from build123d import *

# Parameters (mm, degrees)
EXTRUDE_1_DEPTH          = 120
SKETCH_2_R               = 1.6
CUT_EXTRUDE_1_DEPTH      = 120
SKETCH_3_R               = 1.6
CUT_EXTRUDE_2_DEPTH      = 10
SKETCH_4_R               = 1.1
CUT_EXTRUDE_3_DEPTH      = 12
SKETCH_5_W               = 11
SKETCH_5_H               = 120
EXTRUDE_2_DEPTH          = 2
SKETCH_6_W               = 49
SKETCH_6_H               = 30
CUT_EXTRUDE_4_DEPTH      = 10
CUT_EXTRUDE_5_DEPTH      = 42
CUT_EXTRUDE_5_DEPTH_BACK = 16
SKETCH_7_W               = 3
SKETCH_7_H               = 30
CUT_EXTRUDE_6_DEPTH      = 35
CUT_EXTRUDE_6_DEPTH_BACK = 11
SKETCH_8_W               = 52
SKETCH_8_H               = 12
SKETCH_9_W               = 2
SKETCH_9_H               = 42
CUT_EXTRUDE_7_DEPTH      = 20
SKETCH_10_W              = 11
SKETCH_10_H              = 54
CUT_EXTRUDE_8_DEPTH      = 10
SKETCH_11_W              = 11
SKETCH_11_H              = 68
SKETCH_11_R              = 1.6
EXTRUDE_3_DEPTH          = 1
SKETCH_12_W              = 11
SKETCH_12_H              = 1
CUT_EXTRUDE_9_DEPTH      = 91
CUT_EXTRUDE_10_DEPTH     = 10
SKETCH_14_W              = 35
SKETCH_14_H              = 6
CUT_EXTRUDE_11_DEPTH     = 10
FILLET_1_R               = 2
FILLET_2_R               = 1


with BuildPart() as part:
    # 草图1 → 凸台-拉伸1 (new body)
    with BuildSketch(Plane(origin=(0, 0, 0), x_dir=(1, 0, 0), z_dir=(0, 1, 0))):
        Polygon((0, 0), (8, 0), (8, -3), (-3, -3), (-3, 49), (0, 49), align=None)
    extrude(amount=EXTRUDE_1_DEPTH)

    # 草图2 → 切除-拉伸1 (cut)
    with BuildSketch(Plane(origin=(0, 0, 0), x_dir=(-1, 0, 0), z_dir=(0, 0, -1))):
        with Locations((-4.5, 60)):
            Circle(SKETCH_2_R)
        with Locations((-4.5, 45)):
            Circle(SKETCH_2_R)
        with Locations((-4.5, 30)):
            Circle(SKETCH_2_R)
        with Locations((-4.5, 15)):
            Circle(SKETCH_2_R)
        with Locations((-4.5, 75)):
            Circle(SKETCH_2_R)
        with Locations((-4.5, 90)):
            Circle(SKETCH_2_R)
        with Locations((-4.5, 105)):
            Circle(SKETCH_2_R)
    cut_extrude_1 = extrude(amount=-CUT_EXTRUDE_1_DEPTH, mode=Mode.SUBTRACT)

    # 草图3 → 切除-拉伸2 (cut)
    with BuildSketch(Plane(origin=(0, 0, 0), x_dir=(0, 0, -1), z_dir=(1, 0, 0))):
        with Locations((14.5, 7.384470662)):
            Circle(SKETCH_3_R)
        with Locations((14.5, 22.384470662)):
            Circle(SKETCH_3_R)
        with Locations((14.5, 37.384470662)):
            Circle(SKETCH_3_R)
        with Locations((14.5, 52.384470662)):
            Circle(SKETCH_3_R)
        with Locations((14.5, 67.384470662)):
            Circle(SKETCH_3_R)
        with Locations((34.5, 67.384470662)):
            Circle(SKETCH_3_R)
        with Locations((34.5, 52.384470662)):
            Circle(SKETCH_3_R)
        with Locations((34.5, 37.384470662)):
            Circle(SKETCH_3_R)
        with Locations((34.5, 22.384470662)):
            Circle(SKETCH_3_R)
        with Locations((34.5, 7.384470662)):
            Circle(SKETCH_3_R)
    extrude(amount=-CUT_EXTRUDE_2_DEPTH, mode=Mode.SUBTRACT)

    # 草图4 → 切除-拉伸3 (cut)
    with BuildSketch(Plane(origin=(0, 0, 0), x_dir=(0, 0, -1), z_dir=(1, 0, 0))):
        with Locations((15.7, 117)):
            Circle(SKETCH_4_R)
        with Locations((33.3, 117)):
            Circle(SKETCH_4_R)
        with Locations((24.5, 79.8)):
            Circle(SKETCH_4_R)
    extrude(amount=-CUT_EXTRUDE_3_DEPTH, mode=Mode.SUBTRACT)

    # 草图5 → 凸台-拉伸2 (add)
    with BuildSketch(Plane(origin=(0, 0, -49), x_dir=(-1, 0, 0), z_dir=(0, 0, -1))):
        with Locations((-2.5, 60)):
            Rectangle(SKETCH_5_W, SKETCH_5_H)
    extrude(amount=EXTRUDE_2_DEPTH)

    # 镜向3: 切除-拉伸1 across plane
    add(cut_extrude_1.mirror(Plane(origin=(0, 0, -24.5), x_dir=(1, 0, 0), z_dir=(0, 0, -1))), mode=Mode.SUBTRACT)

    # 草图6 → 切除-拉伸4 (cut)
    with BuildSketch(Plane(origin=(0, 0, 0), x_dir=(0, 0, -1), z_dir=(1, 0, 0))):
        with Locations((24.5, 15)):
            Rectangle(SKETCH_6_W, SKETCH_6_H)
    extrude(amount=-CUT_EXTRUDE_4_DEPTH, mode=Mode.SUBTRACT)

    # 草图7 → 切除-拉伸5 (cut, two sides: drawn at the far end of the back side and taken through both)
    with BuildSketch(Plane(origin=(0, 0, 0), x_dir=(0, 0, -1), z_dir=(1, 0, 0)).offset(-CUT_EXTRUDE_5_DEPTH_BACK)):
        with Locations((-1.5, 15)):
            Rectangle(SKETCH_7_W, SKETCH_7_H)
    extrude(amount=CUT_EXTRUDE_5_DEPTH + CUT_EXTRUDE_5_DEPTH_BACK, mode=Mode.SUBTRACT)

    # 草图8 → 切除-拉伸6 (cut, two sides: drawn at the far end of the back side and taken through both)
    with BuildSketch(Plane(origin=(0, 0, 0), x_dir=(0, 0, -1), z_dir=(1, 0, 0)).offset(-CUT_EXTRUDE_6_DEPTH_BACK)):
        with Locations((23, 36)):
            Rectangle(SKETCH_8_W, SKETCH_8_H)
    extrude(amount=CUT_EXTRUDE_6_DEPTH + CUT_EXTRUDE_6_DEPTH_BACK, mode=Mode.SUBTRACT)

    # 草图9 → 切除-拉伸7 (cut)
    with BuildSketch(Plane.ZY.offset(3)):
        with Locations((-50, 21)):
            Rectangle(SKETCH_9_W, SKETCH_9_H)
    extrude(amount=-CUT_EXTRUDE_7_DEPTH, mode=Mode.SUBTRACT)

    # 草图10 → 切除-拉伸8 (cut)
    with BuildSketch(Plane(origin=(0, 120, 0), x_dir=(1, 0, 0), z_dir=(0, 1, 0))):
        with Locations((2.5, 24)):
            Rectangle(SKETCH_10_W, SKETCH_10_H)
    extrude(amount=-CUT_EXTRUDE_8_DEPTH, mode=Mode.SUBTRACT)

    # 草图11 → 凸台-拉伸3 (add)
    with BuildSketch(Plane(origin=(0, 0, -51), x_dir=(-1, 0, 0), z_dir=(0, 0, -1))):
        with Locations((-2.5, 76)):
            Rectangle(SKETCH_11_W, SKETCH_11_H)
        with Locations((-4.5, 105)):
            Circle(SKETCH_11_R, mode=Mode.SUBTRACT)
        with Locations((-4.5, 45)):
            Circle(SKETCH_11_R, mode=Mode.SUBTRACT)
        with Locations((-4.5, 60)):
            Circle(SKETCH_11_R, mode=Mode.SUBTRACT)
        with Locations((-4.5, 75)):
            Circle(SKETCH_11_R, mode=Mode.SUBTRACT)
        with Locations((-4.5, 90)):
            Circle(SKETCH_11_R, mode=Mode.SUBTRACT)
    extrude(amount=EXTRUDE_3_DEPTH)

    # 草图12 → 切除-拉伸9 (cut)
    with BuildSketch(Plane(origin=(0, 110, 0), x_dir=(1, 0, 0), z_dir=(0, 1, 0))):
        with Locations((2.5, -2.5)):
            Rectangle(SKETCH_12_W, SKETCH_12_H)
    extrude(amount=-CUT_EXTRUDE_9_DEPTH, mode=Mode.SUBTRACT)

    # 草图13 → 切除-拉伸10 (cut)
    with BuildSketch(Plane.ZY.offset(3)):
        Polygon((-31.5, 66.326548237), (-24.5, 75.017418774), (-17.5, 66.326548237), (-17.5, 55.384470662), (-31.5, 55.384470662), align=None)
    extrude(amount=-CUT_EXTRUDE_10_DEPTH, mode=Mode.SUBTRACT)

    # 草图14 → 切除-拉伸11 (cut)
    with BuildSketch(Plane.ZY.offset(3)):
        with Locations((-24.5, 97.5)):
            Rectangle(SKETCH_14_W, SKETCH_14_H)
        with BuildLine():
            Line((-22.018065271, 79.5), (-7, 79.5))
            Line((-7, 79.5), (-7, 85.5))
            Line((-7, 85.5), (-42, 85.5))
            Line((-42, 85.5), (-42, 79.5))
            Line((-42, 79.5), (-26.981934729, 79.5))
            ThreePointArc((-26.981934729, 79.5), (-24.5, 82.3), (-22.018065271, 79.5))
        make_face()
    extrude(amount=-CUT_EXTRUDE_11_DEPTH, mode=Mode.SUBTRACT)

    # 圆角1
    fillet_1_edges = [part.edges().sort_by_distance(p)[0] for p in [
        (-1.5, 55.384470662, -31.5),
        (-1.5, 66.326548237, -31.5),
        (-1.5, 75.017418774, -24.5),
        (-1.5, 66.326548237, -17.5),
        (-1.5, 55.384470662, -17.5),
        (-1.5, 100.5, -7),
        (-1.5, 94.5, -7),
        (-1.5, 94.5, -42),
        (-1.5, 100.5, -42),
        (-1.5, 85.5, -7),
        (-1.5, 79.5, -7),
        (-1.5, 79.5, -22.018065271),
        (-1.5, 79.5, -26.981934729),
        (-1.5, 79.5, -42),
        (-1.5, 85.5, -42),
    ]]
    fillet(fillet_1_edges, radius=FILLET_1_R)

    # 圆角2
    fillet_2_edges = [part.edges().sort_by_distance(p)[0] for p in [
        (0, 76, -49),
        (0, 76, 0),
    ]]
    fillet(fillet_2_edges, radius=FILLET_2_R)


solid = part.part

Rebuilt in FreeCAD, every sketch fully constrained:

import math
import FreeCAD as App
import Part
import Sketcher


def edges_at(feature, points):
    """Names of the edges that pass closest to the given points."""
    edges = feature.Shape.Edges
    near = lambda p: min(range(len(edges)), key=lambda i: edges[i].distToShape(Part.Vertex(*p))[0])
    return sorted({f"Edge{near(p) + 1}" for p in points})

doc = App.newDocument("Part")
body = doc.addObject("PartDesign::Body", "Body")

# Sketch on XZ plane
sketch1 = body.newObject("Sketcher::SketchObject", "Sketch")
sketch1.AttachmentSupport = (doc.getObject("XZ_Plane"), [""])
sketch1.MapMode = "FlatFace"
sketch1.addGeometry([
    Part.LineSegment(App.Vector(8, 0, 0), App.Vector(0, 0, 0)),  # 0
    Part.LineSegment(App.Vector(0, 0, 0), App.Vector(0, -49, 0)),  # 1
    Part.LineSegment(App.Vector(0, -49, 0), App.Vector(-3, -49, 0)),  # 2
    Part.LineSegment(App.Vector(-3, -49, 0), App.Vector(-3, 3, 0)),  # 3
    Part.LineSegment(App.Vector(-3, 3, 0), App.Vector(8, 3, 0)),  # 4
    Part.LineSegment(App.Vector(8, 3, 0), App.Vector(8, 0, 0)),  # 5
], False)
sketch1.addConstraint([
    Sketcher.Constraint("Coincident", 0, 2, 1, 1),
    Sketcher.Constraint("Coincident", 1, 2, 2, 1),
    Sketcher.Constraint("Coincident", 2, 2, 3, 1),
    Sketcher.Constraint("Coincident", 3, 2, 4, 1),
    Sketcher.Constraint("Coincident", 4, 2, 5, 1),
    Sketcher.Constraint("Coincident", 5, 2, 0, 1),
    Sketcher.Constraint("Horizontal", 0),
    Sketcher.Constraint("Vertical", 1),
    Sketcher.Constraint("Horizontal", 2),
    Sketcher.Constraint("Vertical", 3),
    Sketcher.Constraint("Horizontal", 4),
    Sketcher.Constraint("Vertical", 5),
    Sketcher.Constraint("Coincident", 0, 2, -1, 1),
    Sketcher.Constraint("Equal", 2, 5),
    Sketcher.Constraint("DistanceX", 0, 2, 0, 1, 8.0),
    Sketcher.Constraint("DistanceX", 2, 2, 2, 1, 3.0),
    Sketcher.Constraint("DistanceY", 1, 2, 1, 1, 49.0),
])
pad1 = body.newObject("PartDesign::Pad", "Pad")
pad1.Profile = sketch1
pad1.Length = 120
pad1.Reversed = True

# Sketch on XY plane
sketch2 = body.newObject("Sketcher::SketchObject", "Sketch001")
sketch2.AttachmentSupport = (doc.getObject("XY_Plane"), [""])
sketch2.MapMode = "FlatFace"
sketch2.addGeometry([
    Part.Circle(App.Vector(4.5, 60, 0), App.Vector(0, 0, 1), 1.6),  # 0
    Part.Circle(App.Vector(4.5, 45, 0), App.Vector(0, 0, 1), 1.6),  # 1
    Part.Circle(App.Vector(4.5, 30, 0), App.Vector(0, 0, 1), 1.6),  # 2
    Part.Circle(App.Vector(4.5, 15, 0), App.Vector(0, 0, 1), 1.6),  # 3
    Part.Circle(App.Vector(4.5, 75, 0), App.Vector(0, 0, 1), 1.6),  # 4
    Part.Circle(App.Vector(4.5, 90, 0), App.Vector(0, 0, 1), 1.6),  # 5
    Part.Circle(App.Vector(4.5, 105, 0), App.Vector(0, 0, 1), 1.6),  # 6
], False)
sketch2.addConstraint([
    Sketcher.Constraint("Equal", 0, 1),
    Sketcher.Constraint("Equal", 1, 2),
    Sketcher.Constraint("Equal", 2, 3),
    Sketcher.Constraint("Equal", 3, 4),
    Sketcher.Constraint("Equal", 4, 5),
    Sketcher.Constraint("Equal", 5, 6),
    Sketcher.Constraint("Vertical", 0, 3, 1, 3),
    Sketcher.Constraint("Vertical", 1, 3, 2, 3),
    Sketcher.Constraint("Vertical", 2, 3, 3, 3),
    Sketcher.Constraint("Vertical", 3, 3, 4, 3),
    Sketcher.Constraint("Vertical", 4, 3, 5, 3),
    Sketcher.Constraint("Vertical", 5, 3, 6, 3),
    Sketcher.Constraint("Diameter", 0, 3.2),
    Sketcher.Constraint("DistanceY", -1, 1, 0, 3, 60.0),
    Sketcher.Constraint("DistanceY", -1, 1, 1, 3, 45.0),
    Sketcher.Constraint("DistanceY", -1, 1, 2, 3, 30.0),
    Sketcher.Constraint("DistanceY", -1, 1, 3, 3, 15.0),
    Sketcher.Constraint("DistanceY", -1, 1, 4, 3, 75.0),
    Sketcher.Constraint("DistanceY", -1, 1, 5, 3, 90.0),
    Sketcher.Constraint("DistanceY", -1, 1, 6, 3, 105.0),
    Sketcher.Constraint("DistanceX", -1, 1, 0, 3, 4.5),
])
pocket1 = body.newObject("PartDesign::Pocket", "Pocket")
pocket1.Profile = sketch2
pocket1.Length = 120
pocket1.Reversed = True

# Sketch on YZ plane
sketch3 = body.newObject("Sketcher::SketchObject", "Sketch002")
sketch3.AttachmentSupport = (doc.getObject("YZ_Plane"), [""])
sketch3.MapMode = "FlatFace"
sketch3.addGeometry([
    Part.Circle(App.Vector(7.384471, -14.5, 0), App.Vector(0, 0, 1), 1.6),  # 0
    Part.Circle(App.Vector(22.384471, -14.5, 0), App.Vector(0, 0, 1), 1.6),  # 1
    Part.Circle(App.Vector(37.384471, -14.5, 0), App.Vector(0, 0, 1), 1.6),  # 2
    Part.Circle(App.Vector(52.384471, -14.5, 0), App.Vector(0, 0, 1), 1.6),  # 3
    Part.Circle(App.Vector(67.384471, -14.5, 0), App.Vector(0, 0, 1), 1.6),  # 4
    Part.Circle(App.Vector(67.384471, -34.5, 0), App.Vector(0, 0, 1), 1.6),  # 5
    Part.Circle(App.Vector(52.384471, -34.5, 0), App.Vector(0, 0, 1), 1.6),  # 6
    Part.Circle(App.Vector(37.384471, -34.5, 0), App.Vector(0, 0, 1), 1.6),  # 7
    Part.Circle(App.Vector(22.384471, -34.5, 0), App.Vector(0, 0, 1), 1.6),  # 8
    Part.Circle(App.Vector(7.384471, -34.5, 0), App.Vector(0, 0, 1), 1.6),  # 9
], False)
sketch3.addConstraint([
    Sketcher.Constraint("Equal", 0, 1),
    Sketcher.Constraint("Equal", 1, 2),
    Sketcher.Constraint("Equal", 2, 3),
    Sketcher.Constraint("Equal", 3, 4),
    Sketcher.Constraint("Equal", 4, 5),
    Sketcher.Constraint("Equal", 5, 6),
    Sketcher.Constraint("Equal", 6, 7),
    Sketcher.Constraint("Equal", 7, 8),
    Sketcher.Constraint("Equal", 8, 9),
    Sketcher.Constraint("Horizontal", 0, 3, 1, 3),
    Sketcher.Constraint("Horizontal", 1, 3, 2, 3),
    Sketcher.Constraint("Horizontal", 2, 3, 3, 3),
    Sketcher.Constraint("Horizontal", 3, 3, 4, 3),
    Sketcher.Constraint("Horizontal", 5, 3, 6, 3),
    Sketcher.Constraint("Horizontal", 6, 3, 7, 3),
    Sketcher.Constraint("Horizontal", 7, 3, 8, 3),
    Sketcher.Constraint("Horizontal", 8, 3, 9, 3),
    Sketcher.Constraint("Vertical", 4, 3, 5, 3),
    Sketcher.Constraint("Vertical", 3, 3, 6, 3),
    Sketcher.Constraint("Vertical", 2, 3, 7, 3),
    Sketcher.Constraint("Vertical", 1, 3, 8, 3),
    Sketcher.Constraint("Vertical", 0, 3, 9, 3),
    Sketcher.Constraint("Diameter", 0, 3.2),
    Sketcher.Constraint("DistanceX", 0, 3, 1, 3, 15.0),
    Sketcher.Constraint("DistanceX", 1, 3, 2, 3, 15.0),
    Sketcher.Constraint("DistanceX", 2, 3, 3, 3, 15.0),
    Sketcher.Constraint("DistanceX", 3, 3, 4, 3, 15.0),
    Sketcher.Constraint("DistanceY", 5, 3, 4, 3, 20.0),
    Sketcher.Constraint("DistanceY", 0, 3, -1, 1, 14.5),
    Sketcher.Constraint("DistanceX", -1, 1, 0, 3, 7.384471),
])
pocket2 = body.newObject("PartDesign::Pocket", "Pocket001")
pocket2.Profile = sketch3
pocket2.Length = 10

# Sketch on YZ plane
sketch4 = body.newObject("Sketcher::SketchObject", "Sketch003")
sketch4.AttachmentSupport = (doc.getObject("YZ_Plane"), [""])
sketch4.MapMode = "FlatFace"
sketch4.addGeometry([
    Part.Circle(App.Vector(117, -15.7, 0), App.Vector(0, 0, 1), 1.1),
    Part.Circle(App.Vector(117, -33.3, 0), App.Vector(0, 0, 1), 1.1),
    Part.Circle(App.Vector(79.8, -24.5, 0), App.Vector(0, 0, 1), 1.1),
], False)
sketch4.addConstraint([
    Sketcher.Constraint("Equal", 0, 1),
    Sketcher.Constraint("Equal", 1, 2),
    Sketcher.Constraint("Vertical", 0, 3, 1, 3),
    Sketcher.Constraint("Diameter", 0, 2.2),
    Sketcher.Constraint("DistanceX", -1, 1, 0, 3, 117.0),
    Sketcher.Constraint("DistanceY", 0, 3, -1, 1, 15.7),
    Sketcher.Constraint("DistanceY", 1, 3, -1, 1, 33.3),
    Sketcher.Constraint("DistanceX", -1, 1, 2, 3, 79.8),
    Sketcher.Constraint("DistanceY", 2, 3, -1, 1, 24.5),
])
pocket3 = body.newObject("PartDesign::Pocket", "Pocket002")
pocket3.Profile = sketch4
pocket3.Length = 12

# Sketch on XY plane
sketch5 = body.newObject("Sketcher::SketchObject", "Sketch004")
sketch5.AttachmentSupport = (doc.getObject("XY_Plane"), [""])
sketch5.MapMode = "FlatFace"
sketch5.AttachmentOffset = App.Placement(App.Vector(0, 0, -49), App.Rotation())
sketch5.addGeometry([
    Part.LineSegment(App.Vector(8, 120, 0), App.Vector(8, 0, 0)),
    Part.LineSegment(App.Vector(8, 0, 0), App.Vector(-3, 0, 0)),
    Part.LineSegment(App.Vector(-3, 0, 0), App.Vector(-3, 120, 0)),
    Part.LineSegment(App.Vector(-3, 120, 0), App.Vector(8, 120, 0)),
], False)
sketch5.addConstraint([
    Sketcher.Constraint("Coincident", 0, 2, 1, 1),
    Sketcher.Constraint("Coincident", 1, 2, 2, 1),
    Sketcher.Constraint("Coincident", 2, 2, 3, 1),
    Sketcher.Constraint("Coincident", 3, 2, 0, 1),
    Sketcher.Constraint("Vertical", 0),
    Sketcher.Constraint("Horizontal", 1),
    Sketcher.Constraint("Vertical", 2),
    Sketcher.Constraint("Horizontal", 3),
    Sketcher.Constraint("PointOnObject", 0, 2, -1),
    Sketcher.Constraint("DistanceX", 1, 2, 1, 1, 11.0),
    Sketcher.Constraint("DistanceY", 0, 2, 0, 1, 120.0),
    Sketcher.Constraint("DistanceX", -1, 1, 0, 2, 8.0),
])
pad2 = body.newObject("PartDesign::Pad", "Pad001")
pad2.Profile = sketch5
pad2.Length = 2
pad2.Reversed = True
doc.recompute()

datumplane = body.newObject("PartDesign::Plane", "DatumPlane")
datumplane.AttachmentSupport = (doc.getObject("XY_Plane"), [""])
datumplane.MapMode = "FlatFace"
datumplane.AttachmentOffset = App.Placement(App.Vector(0, 0, -24.5), App.Rotation())
mirrored = body.newObject("PartDesign::Mirrored", "Mirrored")
mirrored.Originals = [pocket1]
mirrored.MirrorPlane = (datumplane, [""])
body.Tip = mirrored

# Sketch on YZ plane
sketch6 = body.newObject("Sketcher::SketchObject", "Sketch005")
sketch6.AttachmentSupport = (doc.getObject("YZ_Plane"), [""])
sketch6.MapMode = "FlatFace"
sketch6.addGeometry([
    Part.LineSegment(App.Vector(30, 0, 0), App.Vector(0, 0, 0)),
    Part.LineSegment(App.Vector(0, 0, 0), App.Vector(0, -49, 0)),
    Part.LineSegment(App.Vector(0, -49, 0), App.Vector(30, -49, 0)),
    Part.LineSegment(App.Vector(30, -49, 0), App.Vector(30, 0, 0)),
], False)
sketch6.addConstraint([
    Sketcher.Constraint("Coincident", 0, 2, 1, 1),
    Sketcher.Constraint("Coincident", 1, 2, 2, 1),
    Sketcher.Constraint("Coincident", 2, 2, 3, 1),
    Sketcher.Constraint("Coincident", 3, 2, 0, 1),
    Sketcher.Constraint("Horizontal", 0),
    Sketcher.Constraint("Vertical", 1),
    Sketcher.Constraint("Horizontal", 2),
    Sketcher.Constraint("Vertical", 3),
    Sketcher.Constraint("Coincident", 0, 2, -1, 1),
    Sketcher.Constraint("DistanceX", 0, 2, 0, 1, 30.0),
    Sketcher.Constraint("DistanceY", 1, 2, 1, 1, 49.0),
])
pocket4 = body.newObject("PartDesign::Pocket", "Pocket003")
pocket4.Profile = sketch6
pocket4.Length = 10

# Sketch on YZ plane
sketch7 = body.newObject("Sketcher::SketchObject", "Sketch006")
sketch7.AttachmentSupport = (doc.getObject("YZ_Plane"), [""])
sketch7.MapMode = "FlatFace"
sketch7.addGeometry([
    Part.LineSegment(App.Vector(30, 3, 0), App.Vector(0, 3, 0)),
    Part.LineSegment(App.Vector(0, 3, 0), App.Vector(0, 0, 0)),
    Part.LineSegment(App.Vector(0, 0, 0), App.Vector(30, 0, 0)),
    Part.LineSegment(App.Vector(30, 0, 0), App.Vector(30, 3, 0)),
], False)
sketch7.addConstraint([
    Sketcher.Constraint("Coincident", 0, 2, 1, 1),
    Sketcher.Constraint("Coincident", 1, 2, 2, 1),
    Sketcher.Constraint("Coincident", 2, 2, 3, 1),
    Sketcher.Constraint("Coincident", 3, 2, 0, 1),
    Sketcher.Constraint("Horizontal", 0),
    Sketcher.Constraint("Vertical", 1),
    Sketcher.Constraint("Horizontal", 2),
    Sketcher.Constraint("Vertical", 3),
    Sketcher.Constraint("Coincident", 1, 2, -1, 1),
    Sketcher.Constraint("DistanceX", 0, 2, 0, 1, 30.0),
    Sketcher.Constraint("DistanceY", 1, 2, 1, 1, 3.0),
])
pocket5 = body.newObject("PartDesign::Pocket", "Pocket004")
pocket5.Profile = sketch7
pocket5.Type = "ThroughAll"
pocket5.Midplane = True

# Sketch on YZ plane
sketch8 = body.newObject("Sketcher::SketchObject", "Sketch007")
sketch8.AttachmentSupport = (doc.getObject("YZ_Plane"), [""])
sketch8.MapMode = "FlatFace"
sketch8.addGeometry([
    Part.LineSegment(App.Vector(42, 3, 0), App.Vector(30, 3, 0)),
    Part.LineSegment(App.Vector(30, 3, 0), App.Vector(30, -49, 0)),
    Part.LineSegment(App.Vector(30, -49, 0), App.Vector(42, -49, 0)),
    Part.LineSegment(App.Vector(42, -49, 0), App.Vector(42, 3, 0)),
], False)
sketch8.addConstraint([
    Sketcher.Constraint("Coincident", 0, 2, 1, 1),
    Sketcher.Constraint("Coincident", 1, 2, 2, 1),
    Sketcher.Constraint("Coincident", 2, 2, 3, 1),
    Sketcher.Constraint("Coincident", 3, 2, 0, 1),
    Sketcher.Constraint("Horizontal", 0),
    Sketcher.Constraint("Vertical", 1),
    Sketcher.Constraint("Horizontal", 2),
    Sketcher.Constraint("Vertical", 3),
    Sketcher.Constraint("DistanceX", 0, 2, 0, 1, 12.0),
    Sketcher.Constraint("DistanceY", 1, 2, 1, 1, 52.0),
    Sketcher.Constraint("DistanceX", -1, 1, 0, 2, 30.0),
    Sketcher.Constraint("DistanceY", -1, 1, 0, 2, 3.0),
])
pocket6 = body.newObject("PartDesign::Pocket", "Pocket005")
pocket6.Profile = sketch8
pocket6.Type = "ThroughAll"
pocket6.Midplane = True

# Sketch on YZ plane
sketch9 = body.newObject("Sketcher::SketchObject", "Sketch008")
sketch9.AttachmentSupport = (doc.getObject("YZ_Plane"), [""])
sketch9.MapMode = "FlatFace"
sketch9.AttachmentOffset = App.Placement(App.Vector(0, 0, -3), App.Rotation())
sketch9.addGeometry([
    Part.LineSegment(App.Vector(42, -51, 0), App.Vector(0, -51, 0)),
    Part.LineSegment(App.Vector(0, -51, 0), App.Vector(0, -49, 0)),
    Part.LineSegment(App.Vector(0, -49, 0), App.Vector(42, -49, 0)),
    Part.LineSegment(App.Vector(42, -49, 0), App.Vector(42, -51, 0)),
], False)
sketch9.addConstraint([
    Sketcher.Constraint("Coincident", 0, 2, 1, 1),
    Sketcher.Constraint("Coincident", 1, 2, 2, 1),
    Sketcher.Constraint("Coincident", 2, 2, 3, 1),
    Sketcher.Constraint("Coincident", 3, 2, 0, 1),
    Sketcher.Constraint("Horizontal", 0),
    Sketcher.Constraint("Vertical", 1),
    Sketcher.Constraint("Horizontal", 2),
    Sketcher.Constraint("Vertical", 3),
    Sketcher.Constraint("PointOnObject", 0, 2, -2),
    Sketcher.Constraint("DistanceX", 0, 2, 0, 1, 42.0),
    Sketcher.Constraint("DistanceY", 1, 1, 1, 2, 2.0),
    Sketcher.Constraint("DistanceY", 0, 2, -1, 1, 51.0),
])
pocket7 = body.newObject("PartDesign::Pocket", "Pocket006")
pocket7.Profile = sketch9
pocket7.Length = 20
pocket7.Reversed = True

# Sketch on XZ plane
sketch10 = body.newObject("Sketcher::SketchObject", "Sketch009")
sketch10.AttachmentSupport = (doc.getObject("XZ_Plane"), [""])
sketch10.MapMode = "FlatFace"
sketch10.AttachmentOffset = App.Placement(App.Vector(0, 0, -120), App.Rotation())
sketch10.addGeometry([
    Part.LineSegment(App.Vector(-3, -51, 0), App.Vector(-3, 3, 0)),
    Part.LineSegment(App.Vector(-3, 3, 0), App.Vector(8, 3, 0)),
    Part.LineSegment(App.Vector(8, 3, 0), App.Vector(8, -51, 0)),
    Part.LineSegment(App.Vector(8, -51, 0), App.Vector(-3, -51, 0)),
], False)
sketch10.addConstraint([
    Sketcher.Constraint("Coincident", 0, 2, 1, 1),
    Sketcher.Constraint("Coincident", 1, 2, 2, 1),
    Sketcher.Constraint("Coincident", 2, 2, 3, 1),
    Sketcher.Constraint("Coincident", 3, 2, 0, 1),
    Sketcher.Constraint("Vertical", 0),
    Sketcher.Constraint("Horizontal", 1),
    Sketcher.Constraint("Vertical", 2),
    Sketcher.Constraint("Horizontal", 3),
    Sketcher.Constraint("DistanceX", 1, 1, 1, 2, 11.0),
    Sketcher.Constraint("DistanceY", 0, 1, 0, 2, 54.0),
    Sketcher.Constraint("DistanceX", 0, 2, -1, 1, 3.0),
    Sketcher.Constraint("DistanceY", -1, 1, 0, 2, 3.0),
])
pocket8 = body.newObject("PartDesign::Pocket", "Pocket007")
pocket8.Profile = sketch10
pocket8.Length = 10
pocket8.Reversed = True

# Sketch on XY plane
sketch11 = body.newObject("Sketcher::SketchObject", "Sketch010")
sketch11.AttachmentSupport = (doc.getObject("XY_Plane"), [""])
sketch11.MapMode = "FlatFace"
sketch11.AttachmentOffset = App.Placement(App.Vector(0, 0, -51), App.Rotation())
sketch11.addGeometry([
    Part.LineSegment(App.Vector(8, 110, 0), App.Vector(8, 42, 0)),  # 0
    Part.LineSegment(App.Vector(8, 42, 0), App.Vector(-3, 42, 0)),  # 1
    Part.LineSegment(App.Vector(-3, 42, 0), App.Vector(-3, 110, 0)),  # 2
    Part.LineSegment(App.Vector(-3, 110, 0), App.Vector(8, 110, 0)),  # 3
    Part.Circle(App.Vector(4.5, 45, 0), App.Vector(0, 0, 1), 1.6),  # 4
    Part.Circle(App.Vector(4.5, 60, 0), App.Vector(0, 0, 1), 1.6),  # 5
    Part.Circle(App.Vector(4.5, 75, 0), App.Vector(0, 0, 1), 1.6),  # 6
    Part.Circle(App.Vector(4.5, 90, 0), App.Vector(0, 0, 1), 1.6),  # 7
    Part.Circle(App.Vector(4.5, 105, 0), App.Vector(0, 0, 1), 1.6),  # 8
], False)
sketch11.addConstraint([
    Sketcher.Constraint("Coincident", 0, 2, 1, 1),
    Sketcher.Constraint("Coincident", 1, 2, 2, 1),
    Sketcher.Constraint("Coincident", 2, 2, 3, 1),
    Sketcher.Constraint("Coincident", 3, 2, 0, 1),
    Sketcher.Constraint("Vertical", 0),
    Sketcher.Constraint("Horizontal", 1),
    Sketcher.Constraint("Vertical", 2),
    Sketcher.Constraint("Horizontal", 3),
    Sketcher.Constraint("Equal", 4, 5),
    Sketcher.Constraint("Equal", 5, 6),
    Sketcher.Constraint("Equal", 6, 7),
    Sketcher.Constraint("Equal", 7, 8),
    Sketcher.Constraint("Vertical", 4, 3, 5, 3),
    Sketcher.Constraint("Vertical", 5, 3, 6, 3),
    Sketcher.Constraint("Vertical", 6, 3, 7, 3),
    Sketcher.Constraint("Vertical", 7, 3, 8, 3),
    Sketcher.Constraint("Diameter", 4, 3.2),
    Sketcher.Constraint("DistanceX", 1, 2, 1, 1, 11.0),
    Sketcher.Constraint("DistanceY", 0, 2, 0, 1, 68.0),
    Sketcher.Constraint("DistanceY", -1, 1, 4, 3, 45.0),
    Sketcher.Constraint("DistanceY", -1, 1, 5, 3, 60.0),
    Sketcher.Constraint("DistanceY", -1, 1, 6, 3, 75.0),
    Sketcher.Constraint("DistanceY", -1, 1, 7, 3, 90.0),
    Sketcher.Constraint("DistanceY", -1, 1, 8, 3, 105.0),
    Sketcher.Constraint("DistanceX", -1, 1, 0, 2, 8.0),
    Sketcher.Constraint("DistanceY", -1, 1, 0, 2, 42.0),
    Sketcher.Constraint("DistanceX", -1, 1, 4, 3, 4.5),
])
pad3 = body.newObject("PartDesign::Pad", "Pad002")
pad3.Profile = sketch11
pad3.Length = 1
pad3.Reversed = True

# Sketch on XZ plane
sketch12 = body.newObject("Sketcher::SketchObject", "Sketch011")
sketch12.AttachmentSupport = (doc.getObject("XZ_Plane"), [""])
sketch12.MapMode = "FlatFace"
sketch12.AttachmentOffset = App.Placement(App.Vector(0, 0, -110), App.Rotation())
sketch12.addGeometry([
    Part.LineSegment(App.Vector(-3, 2, 0), App.Vector(-3, 3, 0)),
    Part.LineSegment(App.Vector(-3, 3, 0), App.Vector(8, 3, 0)),
    Part.LineSegment(App.Vector(8, 3, 0), App.Vector(8, 2, 0)),
    Part.LineSegment(App.Vector(8, 2, 0), App.Vector(-3, 2, 0)),
], False)
sketch12.addConstraint([
    Sketcher.Constraint("Coincident", 0, 2, 1, 1),
    Sketcher.Constraint("Coincident", 1, 2, 2, 1),
    Sketcher.Constraint("Coincident", 2, 2, 3, 1),
    Sketcher.Constraint("Coincident", 3, 2, 0, 1),
    Sketcher.Constraint("Vertical", 0),
    Sketcher.Constraint("Horizontal", 1),
    Sketcher.Constraint("Vertical", 2),
    Sketcher.Constraint("Horizontal", 3),
    Sketcher.Constraint("DistanceX", 1, 1, 1, 2, 11.0),
    Sketcher.Constraint("DistanceY", 0, 1, 0, 2, 1.0),
    Sketcher.Constraint("DistanceX", 0, 2, -1, 1, 3.0),
    Sketcher.Constraint("DistanceY", -1, 1, 0, 2, 3.0),
])
pocket9 = body.newObject("PartDesign::Pocket", "Pocket008")
pocket9.Profile = sketch12
pocket9.Length = 91
pocket9.Reversed = True

# Sketch on YZ plane
sketch13 = body.newObject("Sketcher::SketchObject", "Sketch012")
sketch13.AttachmentSupport = (doc.getObject("YZ_Plane"), [""])
sketch13.MapMode = "FlatFace"
sketch13.AttachmentOffset = App.Placement(App.Vector(0, 0, -3), App.Rotation())
sketch13.addGeometry([
    Part.LineSegment(App.Vector(75.017419, -24.5, 0), App.Vector(66.326548, -31.5, 0)),  # 0
    Part.LineSegment(App.Vector(66.326548, -31.5, 0), App.Vector(55.384471, -31.5, 0)),  # 1
    Part.LineSegment(App.Vector(55.384471, -31.5, 0), App.Vector(55.384471, -17.5, 0)),  # 2
    Part.LineSegment(App.Vector(55.384471, -17.5, 0), App.Vector(66.326548, -17.5, 0)),  # 3
    Part.LineSegment(App.Vector(66.326548, -17.5, 0), App.Vector(75.017419, -24.5, 0)),  # 4
], False)
sketch13.addConstraint([
    Sketcher.Constraint("Coincident", 0, 2, 1, 1),
    Sketcher.Constraint("Coincident", 1, 2, 2, 1),
    Sketcher.Constraint("Coincident", 2, 2, 3, 1),
    Sketcher.Constraint("Coincident", 3, 2, 4, 1),
    Sketcher.Constraint("Coincident", 4, 2, 0, 1),
    Sketcher.Constraint("Horizontal", 1),
    Sketcher.Constraint("Vertical", 2),
    Sketcher.Constraint("Horizontal", 3),
    Sketcher.Constraint("Vertical", 0, 2, 3, 2),
    Sketcher.Constraint("Equal", 0, 4),
    Sketcher.Constraint("DistanceY", 2, 1, 2, 2, 14.0),
    Sketcher.Constraint("DistanceY", 0, 2, -1, 1, 31.5),
    Sketcher.Constraint("DistanceX", 1, 2, 1, 1, 10.942078),
    Sketcher.Constraint("DistanceX", -1, 1, 0, 2, 66.326548),
    Sketcher.Constraint("DistanceX", -1, 1, 4, 2, 75.017419),
])
pocket10 = body.newObject("PartDesign::Pocket", "Pocket009")
pocket10.Profile = sketch13
pocket10.Length = 10
pocket10.Reversed = True

# Sketch on YZ plane
sketch14 = body.newObject("Sketcher::SketchObject", "Sketch013")
sketch14.AttachmentSupport = (doc.getObject("YZ_Plane"), [""])
sketch14.MapMode = "FlatFace"
sketch14.AttachmentOffset = App.Placement(App.Vector(0, 0, -3), App.Rotation())
sketch14.addGeometry([
    Part.LineSegment(App.Vector(100.5, -42, 0), App.Vector(94.5, -42, 0)),  # 0
    Part.LineSegment(App.Vector(94.5, -42, 0), App.Vector(94.5, -7, 0)),  # 1
    Part.LineSegment(App.Vector(94.5, -7, 0), App.Vector(100.5, -7, 0)),  # 2
    Part.LineSegment(App.Vector(100.5, -7, 0), App.Vector(100.5, -42, 0)),  # 3
    Part.LineSegment(App.Vector(79.5, -22.018065, 0), App.Vector(79.5, -7, 0)),  # 4
    Part.LineSegment(App.Vector(79.5, -7, 0), App.Vector(85.5, -7, 0)),  # 5
    Part.LineSegment(App.Vector(85.5, -7, 0), App.Vector(85.5, -42, 0)),  # 6
    Part.LineSegment(App.Vector(85.5, -42, 0), App.Vector(79.5, -42, 0)),  # 7
    Part.LineSegment(App.Vector(79.5, -42, 0), App.Vector(79.5, -26.981935, 0)),  # 8
    Part.ArcOfCircle(Part.Circle(App.Vector(79.8, -24.5, 0), App.Vector(0, 0, 1), 2.5), math.radians(-96.892103), math.radians(96.892103)),  # 9
], False)
sketch14.addConstraint([
    Sketcher.Constraint("Coincident", 0, 2, 1, 1),
    Sketcher.Constraint("Coincident", 1, 2, 2, 1),
    Sketcher.Constraint("Coincident", 2, 2, 3, 1),
    Sketcher.Constraint("Coincident", 3, 2, 0, 1),
    Sketcher.Constraint("Coincident", 4, 2, 5, 1),
    Sketcher.Constraint("Coincident", 5, 2, 6, 1),
    Sketcher.Constraint("Coincident", 6, 2, 7, 1),
    Sketcher.Constraint("Coincident", 7, 2, 8, 1),
    Sketcher.Constraint("Coincident", 8, 2, 9, 1),
    Sketcher.Constraint("Coincident", 9, 2, 4, 1),
    Sketcher.Constraint("Horizontal", 0),
    Sketcher.Constraint("Vertical", 1),
    Sketcher.Constraint("Horizontal", 2),
    Sketcher.Constraint("Vertical", 3),
    Sketcher.Constraint("Vertical", 4),
    Sketcher.Constraint("Horizontal", 5),
    Sketcher.Constraint("Vertical", 6),
    Sketcher.Constraint("Horizontal", 7),
    Sketcher.Constraint("Vertical", 8),
    Sketcher.Constraint("Horizontal", 2, 2, 4, 2),
    Sketcher.Constraint("Horizontal", 3, 2, 6, 2),
    Sketcher.Constraint("Vertical", 4, 2, 7, 2),
    Sketcher.Constraint("Equal", 2, 5),
    Sketcher.Constraint("Equal", 4, 8),
    Sketcher.Constraint("Radius", 9, 2.5),
    Sketcher.Constraint("DistanceX", 0, 2, 0, 1, 6.0),
    Sketcher.Constraint("DistanceY", 1, 1, 1, 2, 35.0),
    Sketcher.Constraint("DistanceY", 0, 2, -1, 1, 42.0),
    Sketcher.Constraint("DistanceX", 4, 2, 1, 2, 15.0),
    Sketcher.Constraint("DistanceX", -1, 1, 9, 3, 79.8),
    Sketcher.Constraint("DistanceX", -1, 1, 0, 2, 94.5),
])
pocket11 = body.newObject("PartDesign::Pocket", "Pocket010")
pocket11.Profile = sketch14
pocket11.Length = 10
pocket11.Reversed = True
doc.recompute()

fillet = body.newObject("PartDesign::Fillet", "Fillet")
fillet.Base = (pocket11, edges_at(pocket11, [
    (-1.5, 55.384, -31.5),
    (-1.5, 66.327, -31.5),
    (-1.5, 75.017, -24.5),
    (-1.5, 66.327, -17.5),
    (-1.5, 55.384, -17.5),
    (-1.5, 100.5, -7),
    (-1.5, 94.5, -7),
    (-1.5, 94.5, -42),
    (-1.5, 100.5, -42),
    (-1.5, 85.5, -7),
    (-1.5, 79.5, -7),
    (-1.5, 79.5, -22.018),
    (-1.5, 79.5, -26.982),
    (-1.5, 79.5, -42),
    (-1.5, 85.5, -42),
]))
fillet.Radius = 2
doc.recompute()

fillet2 = body.newObject("PartDesign::Fillet", "Fillet001")
fillet2.Base = (fillet, edges_at(fillet, [(0, 76, -49), (0, 76, 0)]))
fillet2.Radius = 1

doc.recompute()
